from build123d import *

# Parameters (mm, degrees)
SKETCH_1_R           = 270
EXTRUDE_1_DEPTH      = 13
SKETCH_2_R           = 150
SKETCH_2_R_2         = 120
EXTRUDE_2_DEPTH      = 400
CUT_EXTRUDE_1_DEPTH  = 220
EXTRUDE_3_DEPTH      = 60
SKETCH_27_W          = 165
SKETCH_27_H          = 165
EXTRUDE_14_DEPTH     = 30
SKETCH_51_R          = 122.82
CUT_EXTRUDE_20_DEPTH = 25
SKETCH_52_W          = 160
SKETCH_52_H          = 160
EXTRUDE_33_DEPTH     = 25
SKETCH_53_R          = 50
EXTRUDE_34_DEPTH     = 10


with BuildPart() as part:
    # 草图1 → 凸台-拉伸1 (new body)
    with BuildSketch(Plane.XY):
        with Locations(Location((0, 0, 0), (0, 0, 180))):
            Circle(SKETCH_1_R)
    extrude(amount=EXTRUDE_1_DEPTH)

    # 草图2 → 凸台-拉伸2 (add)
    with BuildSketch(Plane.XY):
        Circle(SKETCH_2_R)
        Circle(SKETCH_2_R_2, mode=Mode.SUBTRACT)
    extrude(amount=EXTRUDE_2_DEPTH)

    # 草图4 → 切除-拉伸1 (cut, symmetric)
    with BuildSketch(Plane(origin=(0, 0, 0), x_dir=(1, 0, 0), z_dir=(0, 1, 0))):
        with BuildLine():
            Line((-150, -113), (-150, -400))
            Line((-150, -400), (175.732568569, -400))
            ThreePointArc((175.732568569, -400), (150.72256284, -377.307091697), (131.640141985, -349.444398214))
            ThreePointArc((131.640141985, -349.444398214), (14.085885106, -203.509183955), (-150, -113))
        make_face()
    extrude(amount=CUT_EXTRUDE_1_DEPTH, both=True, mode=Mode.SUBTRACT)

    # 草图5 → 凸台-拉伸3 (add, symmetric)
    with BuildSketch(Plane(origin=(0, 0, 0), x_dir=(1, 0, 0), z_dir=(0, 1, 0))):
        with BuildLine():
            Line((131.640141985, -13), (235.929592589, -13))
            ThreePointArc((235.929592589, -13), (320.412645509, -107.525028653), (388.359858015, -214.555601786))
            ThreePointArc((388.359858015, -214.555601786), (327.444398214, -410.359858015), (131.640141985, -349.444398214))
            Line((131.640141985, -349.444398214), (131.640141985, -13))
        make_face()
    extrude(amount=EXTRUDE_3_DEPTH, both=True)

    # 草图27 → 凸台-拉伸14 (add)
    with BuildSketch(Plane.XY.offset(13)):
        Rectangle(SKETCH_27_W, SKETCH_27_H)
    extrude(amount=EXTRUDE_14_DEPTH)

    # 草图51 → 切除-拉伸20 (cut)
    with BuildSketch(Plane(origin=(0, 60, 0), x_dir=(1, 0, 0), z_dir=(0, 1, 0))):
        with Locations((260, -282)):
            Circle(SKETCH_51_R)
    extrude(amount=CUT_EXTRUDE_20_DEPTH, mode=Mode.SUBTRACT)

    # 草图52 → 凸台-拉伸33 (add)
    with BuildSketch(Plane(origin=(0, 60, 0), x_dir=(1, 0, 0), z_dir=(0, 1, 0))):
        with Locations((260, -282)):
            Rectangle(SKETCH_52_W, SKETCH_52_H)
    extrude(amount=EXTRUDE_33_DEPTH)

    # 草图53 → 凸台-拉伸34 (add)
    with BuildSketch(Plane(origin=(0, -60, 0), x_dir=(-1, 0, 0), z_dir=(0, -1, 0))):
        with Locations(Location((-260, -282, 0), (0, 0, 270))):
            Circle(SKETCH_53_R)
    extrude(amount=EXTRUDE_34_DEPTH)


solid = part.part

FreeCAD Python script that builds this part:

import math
import FreeCAD as App
import Part
import Sketcher

doc = App.newDocument("Part")
body = doc.addObject("PartDesign::Body", "Body")

# Sketch on XY plane
sketch1 = body.newObject("Sketcher::SketchObject", "Sketch")
sketch1.AttachmentSupport = (doc.getObject("XY_Plane"), [""])
sketch1.MapMode = "FlatFace"
sketch1.addGeometry(Part.Circle(App.Vector(0, 0, 0), App.Vector(0, 0, 1), 270), False)
sketch1.addConstraint(Sketcher.Constraint("Coincident", 0, 3, -1, 1))
sketch1.addConstraint(Sketcher.Constraint("Diameter", 0, 540.0))
pad1 = body.newObject("PartDesign::Pad", "Pad")
pad1.Profile = sketch1
pad1.Length = 13

# Sketch on XY plane
sketch2 = body.newObject("Sketcher::SketchObject", "Sketch001")
sketch2.AttachmentSupport = (doc.getObject("XY_Plane"), [""])
sketch2.MapMode = "FlatFace"
sketch2.addGeometry(Part.Circle(App.Vector(0, 0, 0), App.Vector(0, 0, 1), 150), False)
sketch2.addGeometry(Part.Circle(App.Vector(0, 0, 0), App.Vector(0, 0, 1), 120), False)
sketch2.addConstraint(Sketcher.Constraint("Coincident", 0, 3, -1, 1))
sketch2.addConstraint(Sketcher.Constraint("Coincident", 1, 3, -1, 1))
sketch2.addConstraint(Sketcher.Constraint("Diameter", 0, 300.0))
sketch2.addConstraint(Sketcher.Constraint("Diameter", 1, 240.0))
pad2 = body.newObject("PartDesign::Pad", "Pad001")
pad2.Profile = sketch2
pad2.Length = 400

# Sketch on XZ plane
sketch3 = body.newObject("Sketcher::SketchObject", "Sketch002")
sketch3.AttachmentSupport = (doc.getObject("XZ_Plane"), [""])
sketch3.MapMode = "FlatFace"
sketch3.addGeometry(Part.LineSegment(App.Vector(-150, 113, 0), App.Vector(-150, 400, 0)), False)
sketch3.addGeometry(Part.LineSegment(App.Vector(-150, 400, 0), App.Vector(176, 400, 0)), False)
sketch3.addGeometry(Part.ArcOfCircle(Part.Circle(App.Vector(260, 282, 0), App.Vector(0, 0, 1), 145), math.radians(126), math.radians(152)), False)
sketch3.addGeometry(Part.ArcOfCircle(Part.Circle(App.Vector(-298, 575, 0), App.Vector(0, 0, 1), 485), math.radians(-72), math.radians(-28)), False)
sketch3.addConstraint(Sketcher.Constraint("Coincident", 0, 2, 1, 1))
sketch3.addConstraint(Sketcher.Constraint("Coincident", 1, 2, 2, 1))
sketch3.addConstraint(Sketcher.Constraint("Tangent", 2, 2, 3, 2))
sketch3.addConstraint(Sketcher.Constraint("Coincident", 3, 1, 0, 1))
sketch3.addConstraint(Sketcher.Constraint("Vertical", 0))
sketch3.addConstraint(Sketcher.Constraint("Horizontal", 1))
sketch3.addConstraint(Sketcher.Constraint("Radius", 2, 145.0))
sketch3.addConstraint(Sketcher.Constraint("DistanceY", 0, 1, 0, 2, 287.0))
sketch3.addConstraint(Sketcher.Constraint("DistanceX", -1, 1, 2, 3, 260.0))
sketch3.addConstraint(Sketcher.Constraint("DistanceY", -1, 1, 2, 3, 282.0))
sketch3.addConstraint(Sketcher.Constraint("DistanceX", 0, 2, -1, 1, 150.0))
sketch3.addConstraint(Sketcher.Constraint("DistanceY", -1, 1, 0, 2, 400.0))
sketch3.addConstraint(Sketcher.Constraint("Radius", 3, 485.238252))
pocket1 = body.newObject("PartDesign::Pocket", "Pocket")
pocket1.Profile = sketch3
pocket1.Length = 440
pocket1.Midplane = True

# Sketch on XZ plane
sketch4 = body.newObject("Sketcher::SketchObject", "Sketch003")
sketch4.AttachmentSupport = (doc.getObject("XZ_Plane"), [""])
sketch4.MapMode = "FlatFace"
sketch4.addGeometry(Part.LineSegment(App.Vector(236, 13, 0), App.Vector(132, 13, 0)), False)
sketch4.addGeometry(Part.LineSegment(App.Vector(132, 13, 0), App.Vector(132, 349, 0)), False)
sketch4.addGeometry(Part.ArcOfCircle(Part.Circle(App.Vector(260, 282, 0), App.Vector(0, 0, 1), 145), math.radians(-28), math.radians(152)), False)
sketch4.addGeometry(Part.ArcOfCircle(Part.Circle(App.Vector(-298, 575, 0), App.Vector(0, 0, 1), 775), math.radians(-46.48), math.radians(-27.72)), False)
sketch4.addConstraint(Sketcher.Constraint("Coincident", 0, 2, 1, 1))
sketch4.addConstraint(Sketcher.Constraint("Coincident", 1, 2, 2, 2))
sketch4.addConstraint(Sketcher.Constraint("Tangent", 2, 1, 3, 2))
sketch4.addConstraint(Sketcher.Constraint("Coincident", 3, 1, 0, 1))
sketch4.addConstraint(Sketcher.Constraint("Horizontal", 0))
sketch4.addConstraint(Sketcher.Constraint("Vertical", 1))
sketch4.addConstraint(Sketcher.Constraint("Radius", 2, 145.0))
sketch4.addConstraint(Sketcher.Constraint("DistanceX", -1, 1, 2, 3, 260.0))
sketch4.addConstraint(Sketcher.Constraint("DistanceY", -1, 1, 2, 3, 282.0))
sketch4.addConstraint(Sketcher.Constraint("DistanceY", -1, 1, 0, 2, 13.0))
sketch4.addConstraint(Sketcher.Constraint("DistanceY", 1, 1, 1, 2, 336.444398))
sketch4.addConstraint(Sketcher.Constraint("Radius", 3, 775.238252))
sketch4.addConstraint(Sketcher.Constraint("DistanceX", 0, 2, 0, 1, 104.289451))
pad3 = body.newObject("PartDesign::Pad", "Pad002")
pad3.Profile = sketch4
pad3.Length = 120
pad3.Midplane = True

# Sketch on XY plane
sketch5 = body.newObject("Sketcher::SketchObject", "Sketch004")
sketch5.AttachmentSupport = (doc.getObject("XY_Plane"), [""])
sketch5.MapMode = "FlatFace"
sketch5.AttachmentOffset = App.Placement(App.Vector(0, 0, 13), App.Rotation())
sketch5.addGeometry(Part.LineSegment(App.Vector(-82, 82, 0), App.Vector(-82, -82, 0)), False)
sketch5.addGeometry(Part.LineSegment(App.Vector(-82, -82, 0), App.Vector(82, -82, 0)), False)
sketch5.addGeometry(Part.LineSegment(App.Vector(82, -82, 0), App.Vector(82, 82, 0)), False)
sketch5.addGeometry(Part.LineSegment(App.Vector(82, 82, 0), App.Vector(-82, 82, 0)), False)
sketch5.addConstraint(Sketcher.Constraint("Coincident", 0, 2, 1, 1))
sketch5.addConstraint(Sketcher.Constraint("Coincident", 1, 2, 2, 1))
sketch5.addConstraint(Sketcher.Constraint("Coincident", 2, 2, 3, 1))
sketch5.addConstraint(Sketcher.Constraint("Coincident", 3, 2, 0, 1))
sketch5.addConstraint(Sketcher.Constraint("Vertical", 0))
sketch5.addConstraint(Sketcher.Constraint("Horizontal", 1))
sketch5.addConstraint(Sketcher.Constraint("Vertical", 2))
sketch5.addConstraint(Sketcher.Constraint("Horizontal", 3))
sketch5.addConstraint(Sketcher.Constraint("Symmetric", 0, 2, 2, 2, -1, 1))
sketch5.addConstraint(Sketcher.Constraint("Equal", 3, 0))
sketch5.addConstraint(Sketcher.Constraint("DistanceX", 1, 1, 1, 2, 165.0))
pad4 = body.newObject("PartDesign::Pad", "Pad003")
pad4.Profile = sketch5
pad4.Length = 30

# Sketch on XZ plane
sketch6 = body.newObject("Sketcher::SketchObject", "Sketch005")
sketch6.AttachmentSupport = (doc.getObject("XZ_Plane"), [""])
sketch6.MapMode = "FlatFace"
sketch6.AttachmentOffset = App.Placement(App.Vector(0, 0, -60), App.Rotation())
sketch6.addGeometry(Part.Circle(App.Vector(260, 282, 0), App.Vector(0, 0, 1), 123), False)
sketch6.addConstraint(Sketcher.Constraint("Diameter", 0, 245.64))
sketch6.addConstraint(Sketcher.Constraint("DistanceX", -1, 1, 0, 3, 260.0))
sketch6.addConstraint(Sketcher.Constraint("DistanceY", -1, 1, 0, 3, 282.0))
pocket2 = body.newObject("PartDesign::Pocket", "Pocket001")
pocket2.Profile = sketch6
pocket2.Length = 25

# Sketch on XZ plane
sketch7 = body.newObject("Sketcher::SketchObject", "Sketch006")
sketch7.AttachmentSupport = (doc.getObject("XZ_Plane"), [""])
sketch7.MapMode = "FlatFace"
sketch7.AttachmentOffset = App.Placement(App.Vector(0, 0, -60), App.Rotation())
sketch7.addGeometry(Part.LineSegment(App.Vector(180, 202, 0), App.Vector(180, 362, 0)), False)
sketch7.addGeometry(Part.LineSegment(App.Vector(180, 362, 0), App.Vector(340, 362, 0)), False)
sketch7.addGeometry(Part.LineSegment(App.Vector(340, 362, 0), App.Vector(340, 202, 0)), False)
sketch7.addGeometry(Part.LineSegment(App.Vector(340, 202, 0), App.Vector(180, 202, 0)), False)
sketch7.addConstraint(Sketcher.Constraint("Coincident", 0, 2, 1, 1))
sketch7.addConstraint(Sketcher.Constraint("Coincident", 1, 2, 2, 1))
sketch7.addConstraint(Sketcher.Constraint("Coincident", 2, 2, 3, 1))
sketch7.addConstraint(Sketcher.Constraint("Coincident", 3, 2, 0, 1))
sketch7.addConstraint(Sketcher.Constraint("Vertical", 0))
sketch7.addConstraint(Sketcher.Constraint("Horizontal", 1))
sketch7.addConstraint(Sketcher.Constraint("Vertical", 2))
sketch7.addConstraint(Sketcher.Constraint("Horizontal", 3))
sketch7.addConstraint(Sketcher.Constraint("Equal", 3, 0))
sketch7.addConstraint(Sketcher.Constraint("DistanceX", 1, 1, 1, 2, 160.0))
sketch7.addConstraint(Sketcher.Constraint("DistanceX", -1, 1, 0, 2, 180.0))
sketch7.addConstraint(Sketcher.Constraint("DistanceY", -1, 1, 0, 2, 362.0))
pad5 = body.newObject("PartDesign::Pad", "Pad004")
pad5.Profile = sketch7
pad5.Length = 25
pad5.Reversed = True

# Sketch on XZ plane
sketch8 = body.newObject("Sketcher::SketchObject", "Sketch007")
sketch8.AttachmentSupport = (doc.getObject("XZ_Plane"), [""])
sketch8.MapMode = "FlatFace"
sketch8.AttachmentOffset = App.Placement(App.Vector(0, 0, 60), App.Rotation())
sketch8.addGeometry(Part.Circle(App.Vector(260, 282, 0), App.Vector(0, 0, 1), 50), False)
sketch8.addConstraint(Sketcher.Constraint("Diameter", 0, 100.0))
sketch8.addConstraint(Sketcher.Constraint("DistanceX", -1, 1, 0, 3, 260.0))
sketch8.addConstraint(Sketcher.Constraint("DistanceY", -1, 1, 0, 3, 282.0))
pad6 = body.newObject("PartDesign::Pad", "Pad005")
pad6.Profile = sketch8
pad6.Length = 10

doc.recompute()
